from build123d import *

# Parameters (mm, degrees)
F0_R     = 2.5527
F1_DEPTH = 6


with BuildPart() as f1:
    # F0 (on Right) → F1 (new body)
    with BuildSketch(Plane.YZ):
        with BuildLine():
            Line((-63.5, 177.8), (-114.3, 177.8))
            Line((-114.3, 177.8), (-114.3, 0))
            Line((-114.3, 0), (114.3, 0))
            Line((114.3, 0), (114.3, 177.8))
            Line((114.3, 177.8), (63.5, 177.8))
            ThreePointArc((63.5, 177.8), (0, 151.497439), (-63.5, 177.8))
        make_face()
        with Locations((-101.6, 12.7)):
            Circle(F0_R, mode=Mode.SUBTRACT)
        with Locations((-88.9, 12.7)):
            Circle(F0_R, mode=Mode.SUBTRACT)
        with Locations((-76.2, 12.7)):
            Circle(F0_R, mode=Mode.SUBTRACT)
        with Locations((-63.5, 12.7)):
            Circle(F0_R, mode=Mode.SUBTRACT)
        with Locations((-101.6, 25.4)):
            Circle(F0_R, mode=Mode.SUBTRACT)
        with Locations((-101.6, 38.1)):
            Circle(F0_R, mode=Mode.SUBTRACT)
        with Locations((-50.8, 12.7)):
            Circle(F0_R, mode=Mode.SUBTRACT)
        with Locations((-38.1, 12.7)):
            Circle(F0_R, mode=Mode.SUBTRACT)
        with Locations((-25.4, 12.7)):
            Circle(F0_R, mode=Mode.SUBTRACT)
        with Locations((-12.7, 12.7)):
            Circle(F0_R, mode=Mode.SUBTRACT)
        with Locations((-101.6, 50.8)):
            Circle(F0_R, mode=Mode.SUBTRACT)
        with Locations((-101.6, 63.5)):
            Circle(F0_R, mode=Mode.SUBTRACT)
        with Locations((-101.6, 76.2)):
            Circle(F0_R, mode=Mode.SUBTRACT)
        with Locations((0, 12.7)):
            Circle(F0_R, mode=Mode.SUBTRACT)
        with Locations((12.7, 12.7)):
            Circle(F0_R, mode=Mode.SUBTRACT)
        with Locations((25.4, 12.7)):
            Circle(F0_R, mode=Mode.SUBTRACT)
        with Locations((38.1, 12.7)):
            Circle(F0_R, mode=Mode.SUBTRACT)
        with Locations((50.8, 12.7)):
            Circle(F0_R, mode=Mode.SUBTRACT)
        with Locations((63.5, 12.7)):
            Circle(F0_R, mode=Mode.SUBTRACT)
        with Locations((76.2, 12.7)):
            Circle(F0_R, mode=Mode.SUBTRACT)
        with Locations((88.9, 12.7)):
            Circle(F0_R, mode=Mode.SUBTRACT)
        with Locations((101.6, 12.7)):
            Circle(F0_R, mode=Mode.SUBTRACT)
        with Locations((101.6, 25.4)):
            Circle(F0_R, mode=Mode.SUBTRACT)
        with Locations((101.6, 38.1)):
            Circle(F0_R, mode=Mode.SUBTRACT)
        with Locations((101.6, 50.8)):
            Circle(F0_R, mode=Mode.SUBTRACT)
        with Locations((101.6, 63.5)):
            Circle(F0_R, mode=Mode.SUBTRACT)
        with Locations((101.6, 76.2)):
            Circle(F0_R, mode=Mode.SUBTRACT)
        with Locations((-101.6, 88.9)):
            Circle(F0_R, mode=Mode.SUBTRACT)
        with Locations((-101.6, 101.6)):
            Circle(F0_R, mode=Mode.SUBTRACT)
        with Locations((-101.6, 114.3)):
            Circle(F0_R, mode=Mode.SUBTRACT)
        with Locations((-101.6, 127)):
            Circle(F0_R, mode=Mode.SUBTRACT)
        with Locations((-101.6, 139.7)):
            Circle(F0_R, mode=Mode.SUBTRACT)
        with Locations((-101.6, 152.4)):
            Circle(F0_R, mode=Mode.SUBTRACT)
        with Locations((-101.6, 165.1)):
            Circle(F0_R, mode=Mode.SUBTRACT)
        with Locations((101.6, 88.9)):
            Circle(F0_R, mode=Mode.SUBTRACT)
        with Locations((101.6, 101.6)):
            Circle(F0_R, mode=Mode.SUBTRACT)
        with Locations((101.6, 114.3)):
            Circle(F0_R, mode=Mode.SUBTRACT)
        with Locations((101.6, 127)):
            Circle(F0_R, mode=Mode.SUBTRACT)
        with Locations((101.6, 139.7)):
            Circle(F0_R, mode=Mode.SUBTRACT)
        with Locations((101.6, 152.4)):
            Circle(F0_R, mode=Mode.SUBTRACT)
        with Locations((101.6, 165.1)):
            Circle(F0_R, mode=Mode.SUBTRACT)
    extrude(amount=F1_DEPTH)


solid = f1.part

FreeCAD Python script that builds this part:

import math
import FreeCAD as App
import Part
import Sketcher

V = App.Vector
Q = App.Units.Quantity

doc = App.newDocument("Part")
body = doc.addObject("PartDesign::Body", "Body")

sketch1 = body.newObject("Sketcher::SketchObject", "Sketch")
sketch1.AttachmentSupport = (doc.getObject("YZ_Plane"), [""])
sketch1.MapMode = "FlatFace"
sketch1.addGeometry(Part.LineSegment(V(-63.5, 177.8, 0), V(-114.3, 177.8, 0)), False)
sketch1.addGeometry(Part.LineSegment(V(-114.3, 177.8, 0), V(-114.3, 0, 0)), False)
sketch1.addGeometry(Part.LineSegment(V(-114.3, 0, 0), V(114.3, 0, 0)), False)
sketch1.addGeometry(Part.LineSegment(V(114.3, 0, 0), V(114.3, 177.8, 0)), False)
sketch1.addGeometry(Part.LineSegment(V(114.3, 177.8, 0), V(63.5, 177.8, 0)), False)
sketch1.addGeometry(Part.ArcOfCircle(Part.Circle(V(0, 241.300001, 0), V(0, 0, 1), 89.802562), math.radians(-135), math.radians(-45)), False)
sketch1.addGeometry(Part.Circle(V(-101.6, 12.7, 0), V(0, 0, 1), 2.5527), False)
sketch1.addGeometry(Part.Circle(V(-88.9, 12.7, 0), V(0, 0, 1), 2.5527), False)
sketch1.addGeometry(Part.Circle(V(-101.6, 25.4, 0), V(0, 0, 1), 2.5527), False)
sketch1.addGeometry(Part.Circle(V(-76.2, 12.7, 0), V(0, 0, 1), 2.5527), False)
sketch1.addGeometry(Part.Circle(V(-63.5, 12.7, 0), V(0, 0, 1), 2.5527), False)
sketch1.addGeometry(Part.Circle(V(-101.6, 38.1, 0), V(0, 0, 1), 2.5527), False)
sketch1.addGeometry(Part.Circle(V(-50.8, 12.7, 0), V(0, 0, 1), 2.5527), False)
sketch1.addGeometry(Part.Circle(V(-38.1, 12.7, 0), V(0, 0, 1), 2.5527), False)
sketch1.addGeometry(Part.Circle(V(-25.4, 12.7, 0), V(0, 0, 1), 2.5527), False)
sketch1.addGeometry(Part.Circle(V(-12.7, 12.7, 0), V(0, 0, 1), 2.5527), False)
sketch1.addGeometry(Part.Circle(V(-101.6, 50.8, 0), V(0, 0, 1), 2.5527), False)
sketch1.addGeometry(Part.Circle(V(-101.6, 63.5, 0), V(0, 0, 1), 2.5527), False)
sketch1.addGeometry(Part.Circle(V(-101.6, 76.2, 0), V(0, 0, 1), 2.5527), False)
sketch1.addGeometry(Part.Circle(V(0, 12.7, 0), V(0, 0, 1), 2.5527), False)
sketch1.addGeometry(Part.Circle(V(12.7, 12.7, 0), V(0, 0, 1), 2.5527), False)
sketch1.addGeometry(Part.Circle(V(25.4, 12.7, 0), V(0, 0, 1), 2.5527), False)
sketch1.addGeometry(Part.Circle(V(38.1, 12.7, 0), V(0, 0, 1), 2.5527), False)
sketch1.addGeometry(Part.Circle(V(50.8, 12.7, 0), V(0, 0, 1), 2.5527), False)
sketch1.addGeometry(Part.Circle(V(63.5, 12.7, 0), V(0, 0, 1), 2.5527), False)
sketch1.addGeometry(Part.Circle(V(76.2, 12.7, 0), V(0, 0, 1), 2.5527), False)
sketch1.addGeometry(Part.Circle(V(88.9, 12.7, 0), V(0, 0, 1), 2.5527), False)
sketch1.addGeometry(Part.Circle(V(101.6, 12.7, 0), V(0, 0, 1), 2.5527), False)
sketch1.addGeometry(Part.Circle(V(101.6, 25.4, 0), V(0, 0, 1), 2.5527), False)
sketch1.addGeometry(Part.Circle(V(101.6, 38.1, 0), V(0, 0, 1), 2.5527), False)
sketch1.addGeometry(Part.Circle(V(101.6, 50.8, 0), V(0, 0, 1), 2.5527), False)
sketch1.addGeometry(Part.Circle(V(101.6, 63.5, 0), V(0, 0, 1), 2.5527), False)
sketch1.addGeometry(Part.Circle(V(101.6, 76.2, 0), V(0, 0, 1), 2.5527), False)
sketch1.addGeometry(Part.Circle(V(-101.6, 88.9, 0), V(0, 0, 1), 2.5527), False)
sketch1.addGeometry(Part.Circle(V(-101.6, 101.6, 0), V(0, 0, 1), 2.5527), False)
sketch1.addGeometry(Part.Circle(V(-101.6, 114.3, 0), V(0, 0, 1), 2.5527), False)
sketch1.addGeometry(Part.Circle(V(-101.6, 127, 0), V(0, 0, 1), 2.5527), False)
sketch1.addGeometry(Part.Circle(V(-101.6, 139.7, 0), V(0, 0, 1), 2.5527), False)
sketch1.addGeometry(Part.Circle(V(-101.6, 152.4, 0), V(0, 0, 1), 2.5527), False)
sketch1.addGeometry(Part.Circle(V(-101.6, 165.1, 0), V(0, 0, 1), 2.5527), False)
sketch1.addGeometry(Part.Circle(V(101.6, 88.9, 0), V(0, 0, 1), 2.5527), False)
sketch1.addGeometry(Part.Circle(V(101.6, 101.6, 0), V(0, 0, 1), 2.5527), False)
sketch1.addGeometry(Part.Circle(V(101.6, 114.3, 0), V(0, 0, 1), 2.5527), False)
sketch1.addGeometry(Part.Circle(V(101.6, 127, 0), V(0, 0, 1), 2.5527), False)
sketch1.addGeometry(Part.Circle(V(101.6, 139.7, 0), V(0, 0, 1), 2.5527), False)
sketch1.addGeometry(Part.Circle(V(101.6, 152.4, 0), V(0, 0, 1), 2.5527), False)
sketch1.addGeometry(Part.Circle(V(101.6, 165.1, 0), V(0, 0, 1), 2.5527), False)
sketch1.addConstraint(Sketcher.Constraint("Coincident", 0, 2, 1, 1))
sketch1.addConstraint(Sketcher.Constraint("Coincident", 1, 2, 2, 1))
sketch1.addConstraint(Sketcher.Constraint("Coincident", 2, 2, 3, 1))
sketch1.addConstraint(Sketcher.Constraint("Coincident", 3, 2, 4, 1))
sketch1.addConstraint(Sketcher.Constraint("Coincident", 4, 2, 5, 2))
sketch1.addConstraint(Sketcher.Constraint("Coincident", 5, 1, 0, 1))
sketch1.addConstraint(Sketcher.Constraint("Horizontal", 0))
sketch1.addConstraint(Sketcher.Constraint("Vertical", 1))
sketch1.addConstraint(Sketcher.Constraint("Horizontal", 2))
sketch1.addConstraint(Sketcher.Constraint("Vertical", 3))
sketch1.addConstraint(Sketcher.Constraint("Horizontal", 4))
sketch1.addConstraint(Sketcher.Constraint("Equal", 6, 7))
sketch1.addConstraint(Sketcher.Constraint("Equal", 7, 8))
sketch1.addConstraint(Sketcher.Constraint("Equal", 8, 9))
sketch1.addConstraint(Sketcher.Constraint("Equal", 9, 10))
sketch1.addConstraint(Sketcher.Constraint("Equal", 10, 11))
sketch1.addConstraint(Sketcher.Constraint("Equal", 11, 12))
sketch1.addConstraint(Sketcher.Constraint("Equal", 12, 13))
sketch1.addConstraint(Sketcher.Constraint("Equal", 13, 14))
sketch1.addConstraint(Sketcher.Constraint("Equal", 14, 15))
sketch1.addConstraint(Sketcher.Constraint("Equal", 15, 16))
sketch1.addConstraint(Sketcher.Constraint("Equal", 16, 17))
sketch1.addConstraint(Sketcher.Constraint("Equal", 17, 18))
sketch1.addConstraint(Sketcher.Constraint("Equal", 18, 19))
sketch1.addConstraint(Sketcher.Constraint("Equal", 19, 20))
sketch1.addConstraint(Sketcher.Constraint("Equal", 20, 21))
sketch1.addConstraint(Sketcher.Constraint("Equal", 21, 22))
sketch1.addConstraint(Sketcher.Constraint("Equal", 22, 23))
sketch1.addConstraint(Sketcher.Constraint("Equal", 23, 24))
sketch1.addConstraint(Sketcher.Constraint("Equal", 24, 25))
sketch1.addConstraint(Sketcher.Constraint("Equal", 25, 26))
sketch1.addConstraint(Sketcher.Constraint("Equal", 26, 27))
sketch1.addConstraint(Sketcher.Constraint("Equal", 27, 28))
sketch1.addConstraint(Sketcher.Constraint("Equal", 28, 29))
sketch1.addConstraint(Sketcher.Constraint("Equal", 29, 30))
sketch1.addConstraint(Sketcher.Constraint("Equal", 30, 31))
sketch1.addConstraint(Sketcher.Constraint("Equal", 31, 32))
sketch1.addConstraint(Sketcher.Constraint("Equal", 32, 33))
sketch1.addConstraint(Sketcher.Constraint("Equal", 33, 34))
sketch1.addConstraint(Sketcher.Constraint("Equal", 34, 35))
sketch1.addConstraint(Sketcher.Constraint("Equal", 35, 36))
sketch1.addConstraint(Sketcher.Constraint("Equal", 36, 37))
sketch1.addConstraint(Sketcher.Constraint("Equal", 37, 38))
sketch1.addConstraint(Sketcher.Constraint("Equal", 38, 39))
sketch1.addConstraint(Sketcher.Constraint("Equal", 39, 40))
sketch1.addConstraint(Sketcher.Constraint("Equal", 40, 41))
sketch1.addConstraint(Sketcher.Constraint("Equal", 41, 42))
sketch1.addConstraint(Sketcher.Constraint("Equal", 42, 43))
sketch1.addConstraint(Sketcher.Constraint("Equal", 43, 44))
sketch1.addConstraint(Sketcher.Constraint("Equal", 44, 45))
sketch1.addConstraint(Sketcher.Constraint("Equal", 45, 46))
sketch1.addConstraint(Sketcher.Constraint("Symmetric", 1, 2, 2, 2, -1, 1))
sketch1.addConstraint(Sketcher.Constraint("Symmetric", 15, 3, 20, 3, -2))
sketch1.addConstraint(Sketcher.Constraint("Symmetric", 14, 3, 21, 3, -2))
sketch1.addConstraint(Sketcher.Constraint("Symmetric", 13, 3, 22, 3, -2))
sketch1.addConstraint(Sketcher.Constraint("Symmetric", 12, 3, 23, 3, -2))
sketch1.addConstraint(Sketcher.Constraint("Symmetric", 10, 3, 24, 3, -2))
sketch1.addConstraint(Sketcher.Constraint("Symmetric", 9, 3, 25, 3, -2))
sketch1.addConstraint(Sketcher.Constraint("Symmetric", 7, 3, 26, 3, -2))
sketch1.addConstraint(Sketcher.Constraint("Symmetric", 6, 3, 27, 3, -2))
sketch1.addConstraint(Sketcher.Constraint("Symmetric", 8, 3, 28, 3, -2))
sketch1.addConstraint(Sketcher.Constraint("Symmetric", 11, 3, 29, 3, -2))
sketch1.addConstraint(Sketcher.Constraint("Symmetric", 16, 3, 30, 3, -2))
sketch1.addConstraint(Sketcher.Constraint("Symmetric", 17, 3, 31, 3, -2))
sketch1.addConstraint(Sketcher.Constraint("Symmetric", 18, 3, 32, 3, -2))
sketch1.addConstraint(Sketcher.Constraint("Symmetric", 33, 3, 40, 3, -2))
sketch1.addConstraint(Sketcher.Constraint("Symmetric", 34, 3, 41, 3, -2))
sketch1.addConstraint(Sketcher.Constraint("Symmetric", 35, 3, 42, 3, -2))
sketch1.addConstraint(Sketcher.Constraint("Symmetric", 36, 3, 43, 3, -2))
sketch1.addConstraint(Sketcher.Constraint("Symmetric", 37, 3, 44, 3, -2))
sketch1.addConstraint(Sketcher.Constraint("Symmetric", 38, 3, 45, 3, -2))
sketch1.addConstraint(Sketcher.Constraint("Symmetric", 39, 3, 46, 3, -2))
sketch1.addConstraint(Sketcher.Constraint("Symmetric", 4, 2, 5, 1, -2))
sketch1.addConstraint(Sketcher.Constraint("PointOnObject", 19, 3, -2))
sketch1.addConstraint(Sketcher.Constraint("Horizontal", 6, 3, 7, 3))
sketch1.addConstraint(Sketcher.Constraint("Horizontal", 7, 3, 9, 3))
sketch1.addConstraint(Sketcher.Constraint("Horizontal", 9, 3, 10, 3))
sketch1.addConstraint(Sketcher.Constraint("Horizontal", 10, 3, 12, 3))
sketch1.addConstraint(Sketcher.Constraint("Horizontal", 12, 3, 13, 3))
sketch1.addConstraint(Sketcher.Constraint("Horizontal", 13, 3, 14, 3))
sketch1.addConstraint(Sketcher.Constraint("Horizontal", 14, 3, 15, 3))
sketch1.addConstraint(Sketcher.Constraint("Horizontal", 15, 3, 19, 3))
sketch1.addConstraint(Sketcher.Constraint("Vertical", 6, 3, 8, 3))
sketch1.addConstraint(Sketcher.Constraint("Vertical", 8, 3, 11, 3))
sketch1.addConstraint(Sketcher.Constraint("Vertical", 11, 3, 16, 3))
sketch1.addConstraint(Sketcher.Constraint("Vertical", 16, 3, 17, 3))
sketch1.addConstraint(Sketcher.Constraint("Vertical", 17, 3, 18, 3))
sketch1.addConstraint(Sketcher.Constraint("Vertical", 18, 3, 33, 3))
sketch1.addConstraint(Sketcher.Constraint("Vertical", 33, 3, 34, 3))
sketch1.addConstraint(Sketcher.Constraint("Vertical", 34, 3, 35, 3))
sketch1.addConstraint(Sketcher.Constraint("Vertical", 35, 3, 36, 3))
sketch1.addConstraint(Sketcher.Constraint("Vertical", 36, 3, 37, 3))
sketch1.addConstraint(Sketcher.Constraint("Vertical", 37, 3, 38, 3))
sketch1.addConstraint(Sketcher.Constraint("Vertical", 38, 3, 39, 3))
sketch1.addConstraint(Sketcher.Constraint("Vertical", 24, 3, 4, 2))
sketch1.addConstraint(Sketcher.Constraint("DistanceX", 0, 2, 0, 1, Q("2 in")))
sketch1.addConstraint(Sketcher.Constraint("DistanceX", 2, 1, 2, 2, Q("9 in")))
sketch1.addConstraint(Sketcher.Constraint("DistanceY", 1, 2, 1, 1, Q("7 in")))
sketch1.addConstraint(Sketcher.Constraint("Diameter", 6, Q("0.201 in")))
sketch1.addConstraint(Sketcher.Constraint("DistanceX", 6, 3, -1, 1, Q("4 in")))
sketch1.addConstraint(Sketcher.Constraint("DistanceY", -1, 1, 8, 3, Q("1 in")))
sketch1.addConstraint(Sketcher.Constraint("DistanceX", 9, 3, -1, 1, Q("3 in")))
sketch1.addConstraint(Sketcher.Constraint("DistanceX", 12, 3, -1, 1, Q("2 in")))
sketch1.addConstraint(Sketcher.Constraint("DistanceX", 14, 3, -1, 1, Q("1 in")))
sketch1.addConstraint(Sketcher.Constraint("DistanceY", -1, 1, 16, 3, Q("2 in")))
sketch1.addConstraint(Sketcher.Constraint("DistanceY", -1, 1, 18, 3, Q("3 in")))
sketch1.addConstraint(Sketcher.Constraint("DistanceY", -1, 1, 34, 3, Q("4 in")))
sketch1.addConstraint(Sketcher.Constraint("DistanceY", -1, 1, 36, 3, Q("5 in")))
sketch1.addConstraint(Sketcher.Constraint("DistanceY", -1, 1, 38, 3, Q("6 in")))
sketch1.addConstraint(Sketcher.Constraint("DistanceY", 6, 3, 5, 3, Q("9 in")))
sketch1.addConstraint(Sketcher.Constraint("DistanceX", 7, 3, 10, 3, Q("1 in")))
sketch1.addConstraint(Sketcher.Constraint("DistanceY", 6, 3, 11, 3, Q("1 in")))
sketch1.addConstraint(Sketcher.Constraint("DistanceX", 10, 3, 13, 3, Q("1 in")))
sketch1.addConstraint(Sketcher.Constraint("DistanceX", 13, 3, 15, 3, Q("1 in")))
sketch1.addConstraint(Sketcher.Constraint("DistanceY", 11, 3, 17, 3, Q("1 in")))
sketch1.addConstraint(Sketcher.Constraint("DistanceY", 17, 3, 33, 3, Q("1 in")))
sketch1.addConstraint(Sketcher.Constraint("DistanceY", 33, 3, 35, 3, Q("1 in")))
sketch1.addConstraint(Sketcher.Constraint("DistanceY", 35, 3, 37, 3, Q("1 in")))
sketch1.addConstraint(Sketcher.Constraint("DistanceY", 37, 3, 39, 3, Q("1 in")))
sketch1.addConstraint(Sketcher.Constraint("DistanceY", -1, 1, 5, 3, Q("9.5 in")))
pad1 = body.newObject("PartDesign::Pad", "Pad")
pad1.Profile = sketch1
pad1.Length = 6

doc.recompute()
